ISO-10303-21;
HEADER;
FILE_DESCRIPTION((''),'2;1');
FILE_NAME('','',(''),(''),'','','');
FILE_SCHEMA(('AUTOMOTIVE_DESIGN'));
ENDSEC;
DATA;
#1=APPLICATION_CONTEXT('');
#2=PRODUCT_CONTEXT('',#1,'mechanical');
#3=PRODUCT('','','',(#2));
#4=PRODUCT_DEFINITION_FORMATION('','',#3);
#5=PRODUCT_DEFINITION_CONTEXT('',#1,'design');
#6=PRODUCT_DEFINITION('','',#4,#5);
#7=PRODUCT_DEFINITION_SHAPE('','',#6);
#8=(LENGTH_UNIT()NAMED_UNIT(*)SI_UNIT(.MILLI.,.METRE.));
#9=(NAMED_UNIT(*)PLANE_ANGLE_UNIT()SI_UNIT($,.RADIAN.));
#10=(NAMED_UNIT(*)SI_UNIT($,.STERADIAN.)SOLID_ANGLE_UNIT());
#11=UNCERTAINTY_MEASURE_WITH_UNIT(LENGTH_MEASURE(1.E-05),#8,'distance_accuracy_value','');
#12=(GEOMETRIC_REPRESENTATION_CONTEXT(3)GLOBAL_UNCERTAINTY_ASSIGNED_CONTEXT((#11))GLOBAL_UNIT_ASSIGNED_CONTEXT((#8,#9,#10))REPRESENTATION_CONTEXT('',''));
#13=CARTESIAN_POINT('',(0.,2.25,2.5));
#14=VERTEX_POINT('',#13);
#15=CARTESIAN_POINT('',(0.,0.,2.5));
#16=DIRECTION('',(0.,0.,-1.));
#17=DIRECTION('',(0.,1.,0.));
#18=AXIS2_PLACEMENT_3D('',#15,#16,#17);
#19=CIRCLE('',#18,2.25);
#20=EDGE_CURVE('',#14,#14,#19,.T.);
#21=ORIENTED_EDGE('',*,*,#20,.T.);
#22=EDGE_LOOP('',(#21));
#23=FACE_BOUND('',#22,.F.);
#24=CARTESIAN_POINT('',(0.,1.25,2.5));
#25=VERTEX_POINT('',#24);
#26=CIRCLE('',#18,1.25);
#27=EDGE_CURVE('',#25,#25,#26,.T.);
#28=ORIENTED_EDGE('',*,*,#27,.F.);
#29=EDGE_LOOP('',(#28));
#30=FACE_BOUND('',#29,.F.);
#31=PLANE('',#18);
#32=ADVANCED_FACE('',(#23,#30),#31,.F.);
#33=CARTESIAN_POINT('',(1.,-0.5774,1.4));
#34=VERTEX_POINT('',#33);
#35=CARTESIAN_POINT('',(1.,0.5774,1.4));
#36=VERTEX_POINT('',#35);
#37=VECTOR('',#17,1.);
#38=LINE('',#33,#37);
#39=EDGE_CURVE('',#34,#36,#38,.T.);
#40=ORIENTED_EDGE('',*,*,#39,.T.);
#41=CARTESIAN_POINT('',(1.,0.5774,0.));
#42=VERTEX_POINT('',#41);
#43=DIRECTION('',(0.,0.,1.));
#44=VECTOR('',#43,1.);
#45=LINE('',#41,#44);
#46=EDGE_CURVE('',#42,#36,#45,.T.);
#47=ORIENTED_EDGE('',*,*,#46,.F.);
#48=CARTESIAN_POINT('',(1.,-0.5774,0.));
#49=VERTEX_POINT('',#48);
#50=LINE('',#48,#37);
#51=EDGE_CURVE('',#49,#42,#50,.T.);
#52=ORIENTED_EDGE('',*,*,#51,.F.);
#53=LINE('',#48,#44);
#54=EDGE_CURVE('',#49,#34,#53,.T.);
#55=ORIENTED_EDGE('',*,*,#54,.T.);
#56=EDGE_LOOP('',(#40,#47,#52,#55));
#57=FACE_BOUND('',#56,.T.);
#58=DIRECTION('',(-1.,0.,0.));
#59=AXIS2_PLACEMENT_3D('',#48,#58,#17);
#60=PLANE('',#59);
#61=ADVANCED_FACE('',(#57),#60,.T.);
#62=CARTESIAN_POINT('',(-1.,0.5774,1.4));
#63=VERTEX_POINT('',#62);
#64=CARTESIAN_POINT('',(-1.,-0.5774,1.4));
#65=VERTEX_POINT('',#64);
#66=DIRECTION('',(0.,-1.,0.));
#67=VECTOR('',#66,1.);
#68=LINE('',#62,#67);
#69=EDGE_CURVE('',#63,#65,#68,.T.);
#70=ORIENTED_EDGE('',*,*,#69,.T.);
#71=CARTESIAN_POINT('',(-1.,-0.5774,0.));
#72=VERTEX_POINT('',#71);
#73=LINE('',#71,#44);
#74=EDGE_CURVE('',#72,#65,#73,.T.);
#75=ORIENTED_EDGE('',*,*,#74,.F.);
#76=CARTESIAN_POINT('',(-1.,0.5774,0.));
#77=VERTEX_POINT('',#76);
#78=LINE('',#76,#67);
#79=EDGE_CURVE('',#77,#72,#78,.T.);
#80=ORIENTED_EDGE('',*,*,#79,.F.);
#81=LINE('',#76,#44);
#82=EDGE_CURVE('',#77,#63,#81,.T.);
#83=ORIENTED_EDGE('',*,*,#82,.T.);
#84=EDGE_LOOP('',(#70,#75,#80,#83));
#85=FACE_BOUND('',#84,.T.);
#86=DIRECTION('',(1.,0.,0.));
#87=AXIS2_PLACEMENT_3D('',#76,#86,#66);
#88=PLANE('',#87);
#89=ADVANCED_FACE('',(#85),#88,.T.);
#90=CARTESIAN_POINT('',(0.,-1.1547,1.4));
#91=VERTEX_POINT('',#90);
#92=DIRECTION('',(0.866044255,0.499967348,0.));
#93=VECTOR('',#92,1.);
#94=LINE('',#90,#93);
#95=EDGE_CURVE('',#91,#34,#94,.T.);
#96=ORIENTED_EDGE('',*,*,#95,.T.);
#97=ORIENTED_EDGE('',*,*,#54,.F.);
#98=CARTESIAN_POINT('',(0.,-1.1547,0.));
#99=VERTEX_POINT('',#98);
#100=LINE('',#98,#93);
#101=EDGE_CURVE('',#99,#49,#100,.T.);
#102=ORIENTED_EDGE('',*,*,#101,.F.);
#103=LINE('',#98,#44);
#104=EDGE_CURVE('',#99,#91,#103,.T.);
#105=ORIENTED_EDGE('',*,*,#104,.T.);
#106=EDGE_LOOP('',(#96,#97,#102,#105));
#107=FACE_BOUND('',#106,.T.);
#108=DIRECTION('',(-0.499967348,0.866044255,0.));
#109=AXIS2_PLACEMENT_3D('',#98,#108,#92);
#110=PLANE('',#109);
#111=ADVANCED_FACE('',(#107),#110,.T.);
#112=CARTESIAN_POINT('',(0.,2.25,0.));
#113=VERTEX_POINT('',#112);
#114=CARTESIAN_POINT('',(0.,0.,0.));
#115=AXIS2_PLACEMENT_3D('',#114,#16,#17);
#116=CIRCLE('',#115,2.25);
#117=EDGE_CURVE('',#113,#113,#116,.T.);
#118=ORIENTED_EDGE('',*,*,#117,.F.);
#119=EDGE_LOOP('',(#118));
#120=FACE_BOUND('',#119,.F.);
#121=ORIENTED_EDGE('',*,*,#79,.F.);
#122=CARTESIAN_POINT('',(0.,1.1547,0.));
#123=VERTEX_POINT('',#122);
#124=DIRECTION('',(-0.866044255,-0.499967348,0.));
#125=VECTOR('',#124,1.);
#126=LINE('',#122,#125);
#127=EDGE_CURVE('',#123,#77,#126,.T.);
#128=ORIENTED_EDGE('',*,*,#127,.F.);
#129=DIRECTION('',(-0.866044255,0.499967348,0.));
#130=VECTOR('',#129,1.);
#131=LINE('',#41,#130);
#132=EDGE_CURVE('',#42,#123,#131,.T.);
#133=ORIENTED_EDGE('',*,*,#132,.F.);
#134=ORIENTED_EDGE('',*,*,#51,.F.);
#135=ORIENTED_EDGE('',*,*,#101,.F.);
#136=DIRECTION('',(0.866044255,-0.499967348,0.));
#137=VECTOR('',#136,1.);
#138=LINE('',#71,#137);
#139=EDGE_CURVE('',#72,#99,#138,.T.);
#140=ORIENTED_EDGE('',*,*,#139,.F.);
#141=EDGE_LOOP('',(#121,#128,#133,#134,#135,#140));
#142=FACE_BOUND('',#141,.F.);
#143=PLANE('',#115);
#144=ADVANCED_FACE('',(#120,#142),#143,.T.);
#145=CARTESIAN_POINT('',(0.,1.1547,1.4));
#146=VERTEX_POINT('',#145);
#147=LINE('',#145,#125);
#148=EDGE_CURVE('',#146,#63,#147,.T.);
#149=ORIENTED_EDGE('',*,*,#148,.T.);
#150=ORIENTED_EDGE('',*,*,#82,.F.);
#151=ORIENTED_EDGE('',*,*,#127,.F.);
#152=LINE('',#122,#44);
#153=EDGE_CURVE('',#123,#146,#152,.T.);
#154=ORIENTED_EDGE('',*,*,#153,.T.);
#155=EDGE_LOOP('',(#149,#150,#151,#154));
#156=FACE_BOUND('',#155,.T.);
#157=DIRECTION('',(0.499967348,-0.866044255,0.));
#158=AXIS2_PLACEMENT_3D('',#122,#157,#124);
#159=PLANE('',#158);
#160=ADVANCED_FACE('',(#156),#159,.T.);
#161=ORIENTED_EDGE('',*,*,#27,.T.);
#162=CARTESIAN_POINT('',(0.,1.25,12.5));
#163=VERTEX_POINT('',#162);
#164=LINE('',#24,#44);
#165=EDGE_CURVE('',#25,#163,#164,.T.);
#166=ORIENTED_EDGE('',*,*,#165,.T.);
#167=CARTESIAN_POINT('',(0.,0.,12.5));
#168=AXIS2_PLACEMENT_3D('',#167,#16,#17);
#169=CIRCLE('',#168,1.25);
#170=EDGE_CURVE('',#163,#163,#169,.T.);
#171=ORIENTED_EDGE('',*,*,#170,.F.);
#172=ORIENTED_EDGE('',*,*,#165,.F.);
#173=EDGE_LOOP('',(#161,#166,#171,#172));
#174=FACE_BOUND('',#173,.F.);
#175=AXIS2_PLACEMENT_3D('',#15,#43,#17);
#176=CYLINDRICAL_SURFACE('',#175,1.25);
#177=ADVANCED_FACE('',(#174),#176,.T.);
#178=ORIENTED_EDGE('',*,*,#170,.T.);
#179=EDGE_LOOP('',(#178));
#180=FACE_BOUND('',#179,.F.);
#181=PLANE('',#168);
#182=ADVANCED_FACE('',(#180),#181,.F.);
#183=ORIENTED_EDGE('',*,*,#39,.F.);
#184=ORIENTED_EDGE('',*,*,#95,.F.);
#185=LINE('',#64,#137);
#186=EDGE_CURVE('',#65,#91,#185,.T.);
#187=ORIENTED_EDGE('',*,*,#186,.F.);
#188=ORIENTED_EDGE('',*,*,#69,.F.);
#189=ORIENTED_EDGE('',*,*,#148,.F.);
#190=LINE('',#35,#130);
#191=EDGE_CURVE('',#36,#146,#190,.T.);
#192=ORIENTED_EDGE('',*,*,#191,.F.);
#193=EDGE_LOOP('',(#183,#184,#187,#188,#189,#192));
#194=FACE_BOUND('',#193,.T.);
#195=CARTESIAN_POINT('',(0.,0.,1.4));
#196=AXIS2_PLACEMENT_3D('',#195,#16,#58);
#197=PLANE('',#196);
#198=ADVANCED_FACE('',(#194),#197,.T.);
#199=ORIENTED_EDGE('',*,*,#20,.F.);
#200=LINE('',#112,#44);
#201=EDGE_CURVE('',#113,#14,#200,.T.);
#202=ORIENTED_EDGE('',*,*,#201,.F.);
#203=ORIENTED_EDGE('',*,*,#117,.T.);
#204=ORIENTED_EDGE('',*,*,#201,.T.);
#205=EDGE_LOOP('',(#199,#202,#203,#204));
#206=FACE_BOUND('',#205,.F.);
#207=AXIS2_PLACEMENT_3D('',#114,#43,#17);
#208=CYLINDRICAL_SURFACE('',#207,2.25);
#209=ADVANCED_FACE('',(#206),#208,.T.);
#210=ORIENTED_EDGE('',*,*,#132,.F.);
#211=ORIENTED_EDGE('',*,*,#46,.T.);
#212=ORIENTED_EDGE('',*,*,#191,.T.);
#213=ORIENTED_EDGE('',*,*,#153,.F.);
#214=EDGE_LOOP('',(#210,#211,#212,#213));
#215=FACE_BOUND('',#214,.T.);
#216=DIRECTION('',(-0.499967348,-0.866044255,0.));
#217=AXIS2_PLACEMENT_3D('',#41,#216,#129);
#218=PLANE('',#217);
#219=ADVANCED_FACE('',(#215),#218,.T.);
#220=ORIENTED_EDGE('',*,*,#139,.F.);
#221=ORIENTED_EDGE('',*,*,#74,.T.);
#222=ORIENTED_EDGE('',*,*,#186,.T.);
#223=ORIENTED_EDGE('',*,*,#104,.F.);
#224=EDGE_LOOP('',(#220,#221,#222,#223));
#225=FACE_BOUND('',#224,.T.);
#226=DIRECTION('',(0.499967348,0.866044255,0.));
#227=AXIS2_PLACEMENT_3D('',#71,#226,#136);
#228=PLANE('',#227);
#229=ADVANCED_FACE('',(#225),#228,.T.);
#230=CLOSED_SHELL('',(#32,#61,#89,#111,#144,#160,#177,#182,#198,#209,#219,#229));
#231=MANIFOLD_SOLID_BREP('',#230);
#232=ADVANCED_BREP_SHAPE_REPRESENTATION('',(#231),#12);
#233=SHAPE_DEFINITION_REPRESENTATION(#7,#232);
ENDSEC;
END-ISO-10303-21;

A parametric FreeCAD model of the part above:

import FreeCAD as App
import Part
import Sketcher
from FreeCAD import Vector
Q = App.Units.Quantity


def add_polygon(sketch, points):
    """Adds a closed chain of lines whose ends are joined by coincident constraints."""
    first, n = sketch.GeometryCount, len(points)
    for a, b in zip(points, points[1:] + points[:1]):
        sketch.addGeometry(Part.LineSegment(App.Vector(*a, 0), App.Vector(*b, 0)), False)
    for i in range(n):
        sketch.addConstraint(Sketcher.Constraint("Coincident", first + i, 2, first + (i + 1) % n, 1))

doc = App.newDocument("Part")
body = doc.addObject("PartDesign::Body", "Body")

sketch1 = body.newObject("Sketcher::SketchObject", "Sketch")
sketch1.AttachmentSupport = (doc.getObject("YZ_Plane"), [""])
sketch1.MapMode = "FlatFace"
add_polygon(sketch1, [(1.2, 12.5), (0, 12.5), (0, 0), (2.2, 0), (2.2, 2.5), (1.2, 2.5)])
sketch1.addConstraint(Sketcher.Constraint("Horizontal", 0))
sketch1.addConstraint(Sketcher.Constraint("Vertical", 1))
sketch1.addConstraint(Sketcher.Constraint("Horizontal", 2))
sketch1.addConstraint(Sketcher.Constraint("Vertical", 3))
sketch1.addConstraint(Sketcher.Constraint("Horizontal", 4))
sketch1.addConstraint(Sketcher.Constraint("Vertical", 5))
sketch1.addConstraint(Sketcher.Constraint("Coincident", 1, 2, -1, 1))
sketch1.addConstraint(Sketcher.Constraint("DistanceY", 5, 1, 5, 2, Q("10 mm")))
sketch1.addConstraint(Sketcher.Constraint("DistanceY", 3, 1, 3, 2, Q("2.5 mm")))
sketch1.addConstraint(Sketcher.Constraint("DistanceX", 0, 2, 0, 1, Q("1.25 mm")))
sketch1.addConstraint(Sketcher.Constraint("DistanceX", 2, 1, 2, 2, Q("2.25 mm")))
revolution = body.newObject("PartDesign::Revolution", "Revolution")
revolution.Profile = sketch1
revolution.ReferenceAxis = (sketch1, ["V_Axis"])
revolution.Angle = 360

sketch2 = body.newObject("Sketcher::SketchObject", "Sketch001")
sketch2.AttachmentSupport = (doc.getObject("XY_Plane"), [""])
sketch2.MapMode = "FlatFace"
add_polygon(sketch2, [(-1, 0.6), (0, 1.2), (1, 0.6), (1, -0.6), (0, -1.2), (-1, -0.6)])
sketch2.addConstraint(Sketcher.Constraint("Vertical", 2))
sketch2.addConstraint(Sketcher.Constraint("Vertical", 5))
sketch2.addConstraint(Sketcher.Constraint("Symmetric", 0, 2, 3, 2, -1, 1))
sketch2.addConstraint(Sketcher.Constraint("Symmetric", 1, 2, 4, 2, -1, 1))
sketch2.addConstraint(Sketcher.Constraint("PointOnObject", 0, 2, -2))
sketch2.addConstraint(Sketcher.Constraint("Parallel", 0, 3))
sketch2.addConstraint(Sketcher.Constraint("Horizontal", 2, 2, 4, 2))
sketch2.addConstraint(Sketcher.Constraint("DistanceX", 4, 2, 2, 2, Q("2 mm")))
sketch2.addConstraint(Sketcher.Constraint("DistanceY", 2, 2, 2, 1, Q("1.1548 mm")))
sketch2.addConstraint(Sketcher.Constraint("DistanceY", 2, 2, 0, 2, Q("1.732 mm")))
pocket1 = body.newObject("PartDesign::Pocket", "Pocket")
pocket1.Profile = sketch2
pocket1.Length = 1.4
pocket1.Reversed = True

doc.recompute()
